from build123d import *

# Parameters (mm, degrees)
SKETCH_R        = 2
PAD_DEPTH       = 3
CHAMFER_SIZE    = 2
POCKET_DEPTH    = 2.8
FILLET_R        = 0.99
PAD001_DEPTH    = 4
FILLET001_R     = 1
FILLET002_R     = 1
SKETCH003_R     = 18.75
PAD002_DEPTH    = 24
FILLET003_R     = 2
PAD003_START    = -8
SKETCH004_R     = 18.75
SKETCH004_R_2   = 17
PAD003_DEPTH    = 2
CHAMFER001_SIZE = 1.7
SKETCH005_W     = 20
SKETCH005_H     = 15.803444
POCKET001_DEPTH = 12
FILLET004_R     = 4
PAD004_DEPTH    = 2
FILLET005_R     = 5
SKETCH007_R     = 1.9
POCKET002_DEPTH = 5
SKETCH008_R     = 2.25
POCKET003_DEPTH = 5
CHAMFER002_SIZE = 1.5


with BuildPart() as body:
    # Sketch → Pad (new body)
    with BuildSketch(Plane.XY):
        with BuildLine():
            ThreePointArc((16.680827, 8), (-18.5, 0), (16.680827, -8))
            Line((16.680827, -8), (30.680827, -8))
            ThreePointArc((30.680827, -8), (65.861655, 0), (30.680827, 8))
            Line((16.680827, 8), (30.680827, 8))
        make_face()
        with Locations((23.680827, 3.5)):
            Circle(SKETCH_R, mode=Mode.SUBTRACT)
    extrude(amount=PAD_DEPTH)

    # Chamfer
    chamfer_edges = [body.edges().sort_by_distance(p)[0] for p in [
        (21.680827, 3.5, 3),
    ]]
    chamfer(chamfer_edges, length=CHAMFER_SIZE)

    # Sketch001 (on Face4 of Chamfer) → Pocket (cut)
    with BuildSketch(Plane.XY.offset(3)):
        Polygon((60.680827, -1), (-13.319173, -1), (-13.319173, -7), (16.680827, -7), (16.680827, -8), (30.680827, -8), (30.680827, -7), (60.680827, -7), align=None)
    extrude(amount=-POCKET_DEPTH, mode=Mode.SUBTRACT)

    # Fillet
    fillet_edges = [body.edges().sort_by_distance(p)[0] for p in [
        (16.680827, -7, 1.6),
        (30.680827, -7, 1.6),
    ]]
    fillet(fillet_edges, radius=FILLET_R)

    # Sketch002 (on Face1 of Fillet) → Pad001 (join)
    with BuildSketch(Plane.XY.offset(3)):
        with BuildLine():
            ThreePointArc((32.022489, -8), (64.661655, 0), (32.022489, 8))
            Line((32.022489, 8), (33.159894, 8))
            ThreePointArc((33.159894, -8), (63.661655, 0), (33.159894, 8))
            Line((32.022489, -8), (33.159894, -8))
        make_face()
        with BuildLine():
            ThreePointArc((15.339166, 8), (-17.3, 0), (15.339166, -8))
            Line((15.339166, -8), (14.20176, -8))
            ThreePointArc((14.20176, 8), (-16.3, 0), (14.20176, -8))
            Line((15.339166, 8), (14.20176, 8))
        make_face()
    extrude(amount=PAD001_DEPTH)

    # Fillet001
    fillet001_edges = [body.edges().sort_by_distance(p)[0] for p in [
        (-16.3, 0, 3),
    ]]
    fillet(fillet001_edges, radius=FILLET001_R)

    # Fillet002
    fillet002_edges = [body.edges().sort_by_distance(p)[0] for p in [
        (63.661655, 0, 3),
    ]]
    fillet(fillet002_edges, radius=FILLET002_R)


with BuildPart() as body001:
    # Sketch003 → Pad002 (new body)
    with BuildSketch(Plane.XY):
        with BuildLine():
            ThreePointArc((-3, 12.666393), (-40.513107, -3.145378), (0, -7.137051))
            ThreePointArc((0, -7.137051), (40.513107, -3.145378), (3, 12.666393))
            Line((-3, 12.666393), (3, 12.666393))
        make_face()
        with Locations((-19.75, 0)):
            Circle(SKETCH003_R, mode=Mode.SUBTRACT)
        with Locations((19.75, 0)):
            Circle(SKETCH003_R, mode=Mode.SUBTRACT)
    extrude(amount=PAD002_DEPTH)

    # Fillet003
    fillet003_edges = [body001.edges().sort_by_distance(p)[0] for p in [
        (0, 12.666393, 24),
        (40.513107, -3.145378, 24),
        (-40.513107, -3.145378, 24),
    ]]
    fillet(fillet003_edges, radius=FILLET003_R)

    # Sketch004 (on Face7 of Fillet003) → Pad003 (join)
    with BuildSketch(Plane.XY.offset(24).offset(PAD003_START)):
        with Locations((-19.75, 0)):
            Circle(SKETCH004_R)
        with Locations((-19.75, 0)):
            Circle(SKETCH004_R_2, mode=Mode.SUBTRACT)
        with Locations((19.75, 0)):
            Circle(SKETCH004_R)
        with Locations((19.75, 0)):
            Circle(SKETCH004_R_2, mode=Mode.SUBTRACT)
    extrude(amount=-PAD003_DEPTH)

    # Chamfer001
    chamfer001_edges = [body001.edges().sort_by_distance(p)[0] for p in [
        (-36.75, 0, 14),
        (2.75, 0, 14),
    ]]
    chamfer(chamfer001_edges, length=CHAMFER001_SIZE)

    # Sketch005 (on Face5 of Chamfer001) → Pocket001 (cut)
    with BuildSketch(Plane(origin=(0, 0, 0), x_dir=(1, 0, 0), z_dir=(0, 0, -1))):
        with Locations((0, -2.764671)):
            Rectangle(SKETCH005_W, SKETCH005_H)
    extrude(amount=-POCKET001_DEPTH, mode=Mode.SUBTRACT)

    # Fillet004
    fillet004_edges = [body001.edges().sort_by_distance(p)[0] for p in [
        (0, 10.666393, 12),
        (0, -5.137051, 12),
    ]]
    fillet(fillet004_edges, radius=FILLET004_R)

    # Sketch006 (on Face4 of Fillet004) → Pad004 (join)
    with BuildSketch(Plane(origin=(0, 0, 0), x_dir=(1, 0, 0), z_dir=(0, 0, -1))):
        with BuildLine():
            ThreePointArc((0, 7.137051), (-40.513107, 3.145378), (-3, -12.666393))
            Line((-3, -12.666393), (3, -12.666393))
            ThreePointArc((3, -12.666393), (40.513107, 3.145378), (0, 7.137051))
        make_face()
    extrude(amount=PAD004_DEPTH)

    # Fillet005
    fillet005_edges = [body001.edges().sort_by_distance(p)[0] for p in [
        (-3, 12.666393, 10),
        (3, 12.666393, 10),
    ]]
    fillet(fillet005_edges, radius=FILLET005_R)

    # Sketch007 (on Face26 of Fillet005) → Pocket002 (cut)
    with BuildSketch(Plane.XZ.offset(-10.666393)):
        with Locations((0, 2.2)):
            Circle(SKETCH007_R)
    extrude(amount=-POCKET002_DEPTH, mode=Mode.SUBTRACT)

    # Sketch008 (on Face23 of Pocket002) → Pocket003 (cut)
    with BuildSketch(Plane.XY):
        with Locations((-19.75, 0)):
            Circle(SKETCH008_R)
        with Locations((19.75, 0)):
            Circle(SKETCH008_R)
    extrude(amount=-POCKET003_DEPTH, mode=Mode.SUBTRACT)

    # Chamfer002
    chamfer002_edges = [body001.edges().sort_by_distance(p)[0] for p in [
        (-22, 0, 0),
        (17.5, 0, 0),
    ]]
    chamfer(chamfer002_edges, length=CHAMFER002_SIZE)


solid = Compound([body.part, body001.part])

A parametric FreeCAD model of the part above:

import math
import FreeCAD as App
import Part
import Sketcher
from FreeCAD import Vector
Q = App.Units.Quantity


def edges_at(feature, points):
    """Names of the edges that pass closest to the given points."""
    edges = feature.Shape.Edges
    near = lambda p: min(range(len(edges)), key=lambda i: edges[i].distToShape(Part.Vertex(*p))[0])
    return sorted({f"Edge{near(p) + 1}" for p in points})

doc = App.newDocument("Part")
body = doc.addObject("PartDesign::Body", "Body")

# Sketch on XY plane
sketch1 = body.newObject("Sketcher::SketchObject", "Sketch")
sketch1.AttachmentSupport = (doc.getObject("XY_Plane"), [""])
sketch1.MapMode = "FlatFace"
sketch1.addGeometry([
    Part.ArcOfCircle(Part.Circle(Vector(0, 0, 0), Vector(0, 0, 1), 18.5), math.radians(26), math.radians(334)),  # 0
    Part.LineSegment(Vector(16.7, -8, 0), Vector(30.7, -8, 0)),  # 1
    Part.ArcOfCircle(Part.Circle(Vector(47.4, 0, 0), Vector(0, 0, 1), 18.5), math.radians(-154), math.radians(154)),  # 2
    Part.LineSegment(Vector(30.7, 8, 0), Vector(16.7, 8, 0)),  # 3
    Part.Circle(Vector(23.7, 3.5, 0), Vector(0, 0, 1), 2),  # 4
], False)
sketch1.addConstraint([
    Sketcher.Constraint("Coincident", 0, 2, 1, 1),
    Sketcher.Constraint("Coincident", 1, 2, 2, 1),
    Sketcher.Constraint("Coincident", 2, 2, 3, 1),
    Sketcher.Constraint("Coincident", 3, 2, 0, 1),
    Sketcher.Constraint("Horizontal", 1),
    Sketcher.Constraint("Horizontal", 3),
    Sketcher.Constraint("Coincident", 0, 3, -1, 1),
    Sketcher.Constraint("Equal", 0, 2),
    Sketcher.Constraint("Symmetric", 1, 2, 2, 2, -1),
    Sketcher.Constraint("Diameter", 4, Q("4 mm")),
    Sketcher.Constraint("Radius", 0, Q("18.5 mm")),
    Sketcher.Constraint("DistanceX", 1, 1, 1, 2, Q("14 mm")),
    Sketcher.Constraint("DistanceY", 0, 2, -1, 1, Q("8 mm")),
    Sketcher.Constraint("DistanceX", 0, 2, 4, 3, Q("7 mm")),
    Sketcher.Constraint("DistanceY", -1, 1, 4, 3, Q("3.5 mm")),
])
pad1 = body.newObject("PartDesign::Pad", "Pad")
pad1.Profile = sketch1
pad1.Length = 3
doc.recompute()

chamfer = body.newObject("PartDesign::Chamfer", "Chamfer")
chamfer.Base = (pad1, edges_at(pad1, [(21.681, 3.5, 3)]))
chamfer.Size = 2

# Sketch on XY plane
sketch2 = body.newObject("Sketcher::SketchObject", "Sketch001")
sketch2.AttachmentSupport = (doc.getObject("XY_Plane"), [""])
sketch2.MapMode = "FlatFace"
sketch2.AttachmentOffset = App.Placement(Vector(0, 0, 3), App.Rotation())
sketch2.addGeometry([
    Part.LineSegment(Vector(60.7, -1, 0), Vector(-13.3, -1, 0)),  # 0
    Part.LineSegment(Vector(-13.3, -1, 0), Vector(-13.3, -7, 0)),  # 1
    Part.LineSegment(Vector(-13.3, -7, 0), Vector(16.7, -7, 0)),  # 2
    Part.LineSegment(Vector(16.7, -7, 0), Vector(16.7, -8, 0)),  # 3
    Part.LineSegment(Vector(16.7, -8, 0), Vector(30.7, -8, 0)),  # 4
    Part.LineSegment(Vector(30.7, -8, 0), Vector(30.7, -7, 0)),  # 5
    Part.LineSegment(Vector(30.7, -7, 0), Vector(60.7, -7, 0)),  # 6
    Part.LineSegment(Vector(60.7, -7, 0), Vector(60.7, -1, 0)),  # 7
], False)
sketch2.addConstraint([
    Sketcher.Constraint("Coincident", 0, 2, 1, 1),
    Sketcher.Constraint("Coincident", 1, 2, 2, 1),
    Sketcher.Constraint("Coincident", 2, 2, 3, 1),
    Sketcher.Constraint("Coincident", 3, 2, 4, 1),
    Sketcher.Constraint("Coincident", 4, 2, 5, 1),
    Sketcher.Constraint("Coincident", 5, 2, 6, 1),
    Sketcher.Constraint("Coincident", 6, 2, 7, 1),
    Sketcher.Constraint("Coincident", 7, 2, 0, 1),
    Sketcher.Constraint("Horizontal", 0),
    Sketcher.Constraint("Vertical", 1),
    Sketcher.Constraint("Horizontal", 2),
    Sketcher.Constraint("Vertical", 3),
    Sketcher.Constraint("Horizontal", 4),
    Sketcher.Constraint("Vertical", 5),
    Sketcher.Constraint("Horizontal", 6),
    Sketcher.Constraint("Vertical", 7),
    Sketcher.Constraint("Horizontal", 2, 2, 5, 2),
    Sketcher.Constraint("Equal", 2, 6),
    Sketcher.Constraint("DistanceX", 0, 2, 0, 1, Q("74 mm")),
    Sketcher.Constraint("DistanceX", 2, 1, 2, 2, Q("30 mm")),
    Sketcher.Constraint("DistanceY", 1, 2, 1, 1, Q("6 mm")),
    Sketcher.Constraint("DistanceY", 3, 2, 3, 1, Q("1 mm")),
    Sketcher.Constraint("DistanceY", 0, 2, -1, 1, Q("1 mm")),
    Sketcher.Constraint("DistanceX", 0, 2, -1, 1, Q("13.319173 mm")),
])
pocket1 = body.newObject("PartDesign::Pocket", "Pocket")
pocket1.Profile = sketch2
pocket1.Length = 2.8
doc.recompute()

fillet = body.newObject("PartDesign::Fillet", "Fillet")
fillet.Base = (pocket1, edges_at(pocket1, [(16.681, -7, 1.6), (30.681, -7, 1.6)]))
fillet.Radius = 0.99

# Sketch on XY plane
sketch3 = body.newObject("Sketcher::SketchObject", "Sketch002")
sketch3.AttachmentSupport = (doc.getObject("XY_Plane"), [""])
sketch3.MapMode = "FlatFace"
sketch3.AttachmentOffset = App.Placement(Vector(0, 0, 3), App.Rotation())
sketch3.addGeometry([
    Part.ArcOfCircle(Part.Circle(Vector(47.4, 0, 0), Vector(0, 0, 1), 17.3), math.radians(-152), math.radians(152)),  # 0
    Part.LineSegment(Vector(32, 8, 0), Vector(33.2, 8, 0)),  # 1
    Part.ArcOfCircle(Part.Circle(Vector(47.4, 0, 0), Vector(0, 0, 1), 16.3), math.radians(-151), math.radians(151)),  # 2
    Part.LineSegment(Vector(33.2, -8, 0), Vector(32, -8, 0)),  # 3
    Part.ArcOfCircle(Part.Circle(Vector(0, 0, 0), Vector(0, 0, 1), 17.3), math.radians(28), math.radians(332)),  # 4
    Part.LineSegment(Vector(15.3, -8, 0), Vector(14.2, -8, 0)),  # 5
    Part.ArcOfCircle(Part.Circle(Vector(0, 0, 0), Vector(0, 0, 1), 16.3), math.radians(29), math.radians(331)),  # 6
    Part.LineSegment(Vector(14.2, 8, 0), Vector(15.3, 8, 0)),  # 7
], False)
sketch3.addConstraint([
    Sketcher.Constraint("Coincident", 0, 2, 1, 1),
    Sketcher.Constraint("Coincident", 1, 2, 2, 2),
    Sketcher.Constraint("Coincident", 2, 1, 3, 1),
    Sketcher.Constraint("Coincident", 3, 2, 0, 1),
    Sketcher.Constraint("Coincident", 4, 2, 5, 1),
    Sketcher.Constraint("Coincident", 5, 2, 6, 2),
    Sketcher.Constraint("Coincident", 6, 1, 7, 1),
    Sketcher.Constraint("Coincident", 7, 2, 4, 1),
    Sketcher.Constraint("Horizontal", 1),
    Sketcher.Constraint("Horizontal", 3),
    Sketcher.Constraint("Horizontal", 5),
    Sketcher.Constraint("Horizontal", 7),
    Sketcher.Constraint("Coincident", 4, 3, -1, 1),
    Sketcher.Constraint("Coincident", 6, 3, -1, 1),
    Sketcher.Constraint("Coincident", 2, 3, 0, 3),
    Sketcher.Constraint("Equal", 0, 4),
    Sketcher.Constraint("Equal", 2, 6),
    Sketcher.Constraint("Symmetric", 1, 2, 2, 1, -1),
    Sketcher.Constraint("Horizontal", 3, 2, 4, 2),
    Sketcher.Constraint("Horizontal", 1, 2, 6, 1),
    Sketcher.Constraint("Radius", 0, Q("17.3 mm")),
    Sketcher.Constraint("Radius", 2, Q("16.3 mm")),
    Sketcher.Constraint("DistanceY", -1, 1, 0, 2, Q("8 mm")),
    Sketcher.Constraint("DistanceX", -1, 1, 0, 2, Q("32.022489 mm")),
])
pad2 = body.newObject("PartDesign::Pad", "Pad001")
pad2.Profile = sketch3
pad2.Length = 4
doc.recompute()

fillet2 = body.newObject("PartDesign::Fillet", "Fillet001")
fillet2.Base = (pad2, edges_at(pad2, [(-16.3, 0, 3)]))
fillet2.Radius = 1
doc.recompute()

fillet3 = body.newObject("PartDesign::Fillet", "Fillet002")
fillet3.Base = (fillet2, edges_at(fillet2, [(63.662, 0, 3)]))
fillet3.Radius = 1
body2 = doc.addObject("PartDesign::Body", "Body001")

# Sketch on XY plane
sketch4 = body2.newObject("Sketcher::SketchObject", "Sketch003")
sketch4.AttachmentSupport = (doc.getObject("XY_Plane001"), [""])
sketch4.MapMode = "FlatFace"
sketch4.addGeometry([
    Part.ArcOfCircle(Part.Circle(Vector(-20, 0, 0), Vector(0, 0, 1), 21), math.radians(37), math.radians(340)),  # 0
    Part.ArcOfCircle(Part.Circle(Vector(20, 0, 0), Vector(0, 0, 1), 21), math.radians(-160), math.radians(143)),  # 1
    Part.LineSegment(Vector(3, 13, 0), Vector(-3, 13, 0)),  # 2
    Part.Circle(Vector(-20, 0, 0), Vector(0, 0, 1), 19),  # 3
    Part.Circle(Vector(20, 0, 0), Vector(0, 0, 1), 19),  # 4
], False)
sketch4.addConstraint([
    Sketcher.Constraint("Coincident", 0, 2, 1, 1),
    Sketcher.Constraint("Coincident", 1, 2, 2, 1),
    Sketcher.Constraint("Coincident", 2, 2, 0, 1),
    Sketcher.Constraint("Horizontal", 2),
    Sketcher.Constraint("Coincident", 3, 3, 0, 3),
    Sketcher.Constraint("Coincident", 4, 3, 1, 3),
    Sketcher.Constraint("Equal", 0, 1),
    Sketcher.Constraint("Equal", 3, 4),
    Sketcher.Constraint("Symmetric", 0, 3, 1, 3, -1, 1),
    Sketcher.Constraint("PointOnObject", 0, 3, -1),
    Sketcher.Constraint("Radius", 0, Q("21 mm")),
    Sketcher.Constraint("Diameter", 3, Q("37.5 mm")),
    Sketcher.Constraint("DistanceX", 2, 2, 2, 1, Q("6 mm")),
    Sketcher.Constraint("DistanceX", 0, 3, 1, 3, Q("39.5 mm")),
])
pad3 = body2.newObject("PartDesign::Pad", "Pad002")
pad3.Profile = sketch4
pad3.Length = 24
doc.recompute()

fillet4 = body2.newObject("PartDesign::Fillet", "Fillet003")
fillet4.Base = (pad3, edges_at(pad3, [(0, 12.666, 24), (40.513, -3.145, 24), (-40.513, -3.145, 24)]))
fillet4.Radius = 2

# Sketch on XY plane
sketch5 = body2.newObject("Sketcher::SketchObject", "Sketch004")
sketch5.AttachmentSupport = (doc.getObject("XY_Plane001"), [""])
sketch5.MapMode = "FlatFace"
sketch5.AttachmentOffset = App.Placement(Vector(0, 0, 16), App.Rotation())
sketch5.addGeometry([
    Part.Circle(Vector(-20, 0, 0), Vector(0, 0, 1), 19),
    Part.Circle(Vector(-20, 0, 0), Vector(0, 0, 1), 17),
    Part.Circle(Vector(20, 0, 0), Vector(0, 0, 1), 19),
    Part.Circle(Vector(20, 0, 0), Vector(0, 0, 1), 17),
], False)
sketch5.addConstraint([
    Sketcher.Constraint("Coincident", 1, 3, 0, 3),
    Sketcher.Constraint("Coincident", 3, 3, 2, 3),
    Sketcher.Constraint("Equal", 0, 2),
    Sketcher.Constraint("Equal", 1, 3),
    Sketcher.Constraint("Symmetric", 0, 3, 2, 3, -1, 1),
    Sketcher.Constraint("PointOnObject", 0, 3, -1),
    Sketcher.Constraint("Diameter", 1, Q("34 mm")),
    Sketcher.Constraint("Diameter", 0, Q("37.5 mm")),
    Sketcher.Constraint("DistanceX", 0, 3, 2, 3, Q("39.5 mm")),
])
pad4 = body2.newObject("PartDesign::Pad", "Pad003")
pad4.Profile = sketch5
pad4.Length = 2
pad4.Reversed = True
doc.recompute()

chamfer2 = body2.newObject("PartDesign::Chamfer", "Chamfer001")
chamfer2.Base = (pad4, edges_at(pad4, [(-36.75, 0, 14), (2.75, 0, 14)]))
chamfer2.Size = 1.7

# Sketch on XY plane
sketch6 = body2.newObject("Sketcher::SketchObject", "Sketch005")
sketch6.AttachmentSupport = (doc.getObject("XY_Plane001"), [""])
sketch6.MapMode = "FlatFace"
sketch6.addGeometry([
    Part.LineSegment(Vector(-10, -5, 0), Vector(-10, 11, 0)),
    Part.LineSegment(Vector(-10, 11, 0), Vector(10, 11, 0)),
    Part.LineSegment(Vector(10, 11, 0), Vector(10, -5, 0)),
    Part.LineSegment(Vector(10, -5, 0), Vector(-10, -5, 0)),
], False)
sketch6.addConstraint([
    Sketcher.Constraint("Coincident", 0, 2, 1, 1),
    Sketcher.Constraint("Coincident", 1, 2, 2, 1),
    Sketcher.Constraint("Coincident", 2, 2, 3, 1),
    Sketcher.Constraint("Coincident", 3, 2, 0, 1),
    Sketcher.Constraint("Vertical", 0),
    Sketcher.Constraint("Horizontal", 1),
    Sketcher.Constraint("Vertical", 2),
    Sketcher.Constraint("Horizontal", 3),
    Sketcher.Constraint("DistanceX", 1, 1, 1, 2, Q("20 mm")),
    Sketcher.Constraint("DistanceX", 0, 2, -1, 1, Q("10 mm")),
    Sketcher.Constraint("DistanceY", 0, 1, 0, 2, Q("15.803444 mm")),
    Sketcher.Constraint("DistanceY", 2, 2, -1, 1, Q("5.137051 mm")),
])
pocket2 = body2.newObject("PartDesign::Pocket", "Pocket001")
pocket2.Profile = sketch6
pocket2.Length = 12
pocket2.Reversed = True
doc.recompute()

fillet5 = body2.newObject("PartDesign::Fillet", "Fillet004")
fillet5.Base = (pocket2, edges_at(pocket2, [(0, 10.666, 12), (0, -5.137, 12)]))
fillet5.Radius = 4

# Sketch on XY plane
sketch7 = body2.newObject("Sketcher::SketchObject", "Sketch006")
sketch7.AttachmentSupport = (doc.getObject("XY_Plane001"), [""])
sketch7.MapMode = "FlatFace"
sketch7.addGeometry([
    Part.ArcOfCircle(Part.Circle(Vector(-20, 0, 0), Vector(0, 0, 1), 21), math.radians(37), math.radians(340)),
    Part.LineSegment(Vector(-3, 13, 0), Vector(3, 13, 0)),
    Part.ArcOfCircle(Part.Circle(Vector(20, 0, 0), Vector(0, 0, 1), 21), math.radians(-160), math.radians(143)),
], False)
sketch7.addConstraint([
    Sketcher.Constraint("Coincident", 0, 1, 1, 1),
    Sketcher.Constraint("Coincident", 1, 2, 2, 2),
    Sketcher.Constraint("Coincident", 2, 1, 0, 2),
    Sketcher.Constraint("Horizontal", 1),
    Sketcher.Constraint("Equal", 0, 2),
    Sketcher.Constraint("Symmetric", 0, 3, 2, 3, -1, 1),
    Sketcher.Constraint("PointOnObject", 0, 3, -1),
    Sketcher.Constraint("Radius", 0, Q("21 mm")),
    Sketcher.Constraint("DistanceX", 1, 1, 1, 2, Q("6 mm")),
    Sketcher.Constraint("DistanceX", 0, 3, 2, 3, Q("39.5 mm")),
])
pad5 = body2.newObject("PartDesign::Pad", "Pad004")
pad5.Profile = sketch7
pad5.Length = 2
pad5.Reversed = True
doc.recompute()

fillet6 = body2.newObject("PartDesign::Fillet", "Fillet005")
fillet6.Base = (pad5, edges_at(pad5, [(-3, 12.666, 11), (3, 12.666, 11)]))
fillet6.Radius = 5

# Sketch on XZ plane
sketch8 = body2.newObject("Sketcher::SketchObject", "Sketch007")
sketch8.AttachmentSupport = (doc.getObject("XZ_Plane001"), [""])
sketch8.MapMode = "FlatFace"
sketch8.AttachmentOffset = App.Placement(Vector(0, 0, -10.666393), App.Rotation())
sketch8.addGeometry(Part.Circle(Vector(0, 2.2, 0), Vector(0, 0, 1), 1.9), False)
sketch8.addConstraint([
    Sketcher.Constraint("PointOnObject", 0, 3, -2),
    Sketcher.Constraint("Diameter", 0, Q("3.8 mm")),
    Sketcher.Constraint("DistanceY", -1, 1, 0, 3, Q("2.2 mm")),
])
pocket3 = body2.newObject("PartDesign::Pocket", "Pocket002")
pocket3.Profile = sketch8
pocket3.Length = 5

# Sketch on XY plane
sketch9 = body2.newObject("Sketcher::SketchObject", "Sketch008")
sketch9.AttachmentSupport = (doc.getObject("XY_Plane001"), [""])
sketch9.MapMode = "FlatFace"
sketch9.addGeometry([
    Part.Circle(Vector(-19.8, 0, 0), Vector(0, 0, 1), 2.2),
    Part.Circle(Vector(19.8, 0, 0), Vector(0, 0, 1), 2.2),
], False)
sketch9.addConstraint([
    Sketcher.Constraint("Equal", 0, 1),
    Sketcher.Constraint("Symmetric", 0, 3, 1, 3, -1, 1),
    Sketcher.Constraint("PointOnObject", 0, 3, -1),
    Sketcher.Constraint("Diameter", 0, Q("4.5 mm")),
    Sketcher.Constraint("DistanceX", 0, 3, 1, 3, Q("39.5 mm")),
])
pocket4 = body2.newObject("PartDesign::Pocket", "Pocket003")
pocket4.Profile = sketch9
pocket4.Length = 5
doc.recompute()

chamfer3 = body2.newObject("PartDesign::Chamfer", "Chamfer002")
chamfer3.Base = (pocket4, edges_at(pocket4, [(-22, 0, 0), (17.5, 0, 0)]))
chamfer3.Size = 1.5

doc.recompute()
